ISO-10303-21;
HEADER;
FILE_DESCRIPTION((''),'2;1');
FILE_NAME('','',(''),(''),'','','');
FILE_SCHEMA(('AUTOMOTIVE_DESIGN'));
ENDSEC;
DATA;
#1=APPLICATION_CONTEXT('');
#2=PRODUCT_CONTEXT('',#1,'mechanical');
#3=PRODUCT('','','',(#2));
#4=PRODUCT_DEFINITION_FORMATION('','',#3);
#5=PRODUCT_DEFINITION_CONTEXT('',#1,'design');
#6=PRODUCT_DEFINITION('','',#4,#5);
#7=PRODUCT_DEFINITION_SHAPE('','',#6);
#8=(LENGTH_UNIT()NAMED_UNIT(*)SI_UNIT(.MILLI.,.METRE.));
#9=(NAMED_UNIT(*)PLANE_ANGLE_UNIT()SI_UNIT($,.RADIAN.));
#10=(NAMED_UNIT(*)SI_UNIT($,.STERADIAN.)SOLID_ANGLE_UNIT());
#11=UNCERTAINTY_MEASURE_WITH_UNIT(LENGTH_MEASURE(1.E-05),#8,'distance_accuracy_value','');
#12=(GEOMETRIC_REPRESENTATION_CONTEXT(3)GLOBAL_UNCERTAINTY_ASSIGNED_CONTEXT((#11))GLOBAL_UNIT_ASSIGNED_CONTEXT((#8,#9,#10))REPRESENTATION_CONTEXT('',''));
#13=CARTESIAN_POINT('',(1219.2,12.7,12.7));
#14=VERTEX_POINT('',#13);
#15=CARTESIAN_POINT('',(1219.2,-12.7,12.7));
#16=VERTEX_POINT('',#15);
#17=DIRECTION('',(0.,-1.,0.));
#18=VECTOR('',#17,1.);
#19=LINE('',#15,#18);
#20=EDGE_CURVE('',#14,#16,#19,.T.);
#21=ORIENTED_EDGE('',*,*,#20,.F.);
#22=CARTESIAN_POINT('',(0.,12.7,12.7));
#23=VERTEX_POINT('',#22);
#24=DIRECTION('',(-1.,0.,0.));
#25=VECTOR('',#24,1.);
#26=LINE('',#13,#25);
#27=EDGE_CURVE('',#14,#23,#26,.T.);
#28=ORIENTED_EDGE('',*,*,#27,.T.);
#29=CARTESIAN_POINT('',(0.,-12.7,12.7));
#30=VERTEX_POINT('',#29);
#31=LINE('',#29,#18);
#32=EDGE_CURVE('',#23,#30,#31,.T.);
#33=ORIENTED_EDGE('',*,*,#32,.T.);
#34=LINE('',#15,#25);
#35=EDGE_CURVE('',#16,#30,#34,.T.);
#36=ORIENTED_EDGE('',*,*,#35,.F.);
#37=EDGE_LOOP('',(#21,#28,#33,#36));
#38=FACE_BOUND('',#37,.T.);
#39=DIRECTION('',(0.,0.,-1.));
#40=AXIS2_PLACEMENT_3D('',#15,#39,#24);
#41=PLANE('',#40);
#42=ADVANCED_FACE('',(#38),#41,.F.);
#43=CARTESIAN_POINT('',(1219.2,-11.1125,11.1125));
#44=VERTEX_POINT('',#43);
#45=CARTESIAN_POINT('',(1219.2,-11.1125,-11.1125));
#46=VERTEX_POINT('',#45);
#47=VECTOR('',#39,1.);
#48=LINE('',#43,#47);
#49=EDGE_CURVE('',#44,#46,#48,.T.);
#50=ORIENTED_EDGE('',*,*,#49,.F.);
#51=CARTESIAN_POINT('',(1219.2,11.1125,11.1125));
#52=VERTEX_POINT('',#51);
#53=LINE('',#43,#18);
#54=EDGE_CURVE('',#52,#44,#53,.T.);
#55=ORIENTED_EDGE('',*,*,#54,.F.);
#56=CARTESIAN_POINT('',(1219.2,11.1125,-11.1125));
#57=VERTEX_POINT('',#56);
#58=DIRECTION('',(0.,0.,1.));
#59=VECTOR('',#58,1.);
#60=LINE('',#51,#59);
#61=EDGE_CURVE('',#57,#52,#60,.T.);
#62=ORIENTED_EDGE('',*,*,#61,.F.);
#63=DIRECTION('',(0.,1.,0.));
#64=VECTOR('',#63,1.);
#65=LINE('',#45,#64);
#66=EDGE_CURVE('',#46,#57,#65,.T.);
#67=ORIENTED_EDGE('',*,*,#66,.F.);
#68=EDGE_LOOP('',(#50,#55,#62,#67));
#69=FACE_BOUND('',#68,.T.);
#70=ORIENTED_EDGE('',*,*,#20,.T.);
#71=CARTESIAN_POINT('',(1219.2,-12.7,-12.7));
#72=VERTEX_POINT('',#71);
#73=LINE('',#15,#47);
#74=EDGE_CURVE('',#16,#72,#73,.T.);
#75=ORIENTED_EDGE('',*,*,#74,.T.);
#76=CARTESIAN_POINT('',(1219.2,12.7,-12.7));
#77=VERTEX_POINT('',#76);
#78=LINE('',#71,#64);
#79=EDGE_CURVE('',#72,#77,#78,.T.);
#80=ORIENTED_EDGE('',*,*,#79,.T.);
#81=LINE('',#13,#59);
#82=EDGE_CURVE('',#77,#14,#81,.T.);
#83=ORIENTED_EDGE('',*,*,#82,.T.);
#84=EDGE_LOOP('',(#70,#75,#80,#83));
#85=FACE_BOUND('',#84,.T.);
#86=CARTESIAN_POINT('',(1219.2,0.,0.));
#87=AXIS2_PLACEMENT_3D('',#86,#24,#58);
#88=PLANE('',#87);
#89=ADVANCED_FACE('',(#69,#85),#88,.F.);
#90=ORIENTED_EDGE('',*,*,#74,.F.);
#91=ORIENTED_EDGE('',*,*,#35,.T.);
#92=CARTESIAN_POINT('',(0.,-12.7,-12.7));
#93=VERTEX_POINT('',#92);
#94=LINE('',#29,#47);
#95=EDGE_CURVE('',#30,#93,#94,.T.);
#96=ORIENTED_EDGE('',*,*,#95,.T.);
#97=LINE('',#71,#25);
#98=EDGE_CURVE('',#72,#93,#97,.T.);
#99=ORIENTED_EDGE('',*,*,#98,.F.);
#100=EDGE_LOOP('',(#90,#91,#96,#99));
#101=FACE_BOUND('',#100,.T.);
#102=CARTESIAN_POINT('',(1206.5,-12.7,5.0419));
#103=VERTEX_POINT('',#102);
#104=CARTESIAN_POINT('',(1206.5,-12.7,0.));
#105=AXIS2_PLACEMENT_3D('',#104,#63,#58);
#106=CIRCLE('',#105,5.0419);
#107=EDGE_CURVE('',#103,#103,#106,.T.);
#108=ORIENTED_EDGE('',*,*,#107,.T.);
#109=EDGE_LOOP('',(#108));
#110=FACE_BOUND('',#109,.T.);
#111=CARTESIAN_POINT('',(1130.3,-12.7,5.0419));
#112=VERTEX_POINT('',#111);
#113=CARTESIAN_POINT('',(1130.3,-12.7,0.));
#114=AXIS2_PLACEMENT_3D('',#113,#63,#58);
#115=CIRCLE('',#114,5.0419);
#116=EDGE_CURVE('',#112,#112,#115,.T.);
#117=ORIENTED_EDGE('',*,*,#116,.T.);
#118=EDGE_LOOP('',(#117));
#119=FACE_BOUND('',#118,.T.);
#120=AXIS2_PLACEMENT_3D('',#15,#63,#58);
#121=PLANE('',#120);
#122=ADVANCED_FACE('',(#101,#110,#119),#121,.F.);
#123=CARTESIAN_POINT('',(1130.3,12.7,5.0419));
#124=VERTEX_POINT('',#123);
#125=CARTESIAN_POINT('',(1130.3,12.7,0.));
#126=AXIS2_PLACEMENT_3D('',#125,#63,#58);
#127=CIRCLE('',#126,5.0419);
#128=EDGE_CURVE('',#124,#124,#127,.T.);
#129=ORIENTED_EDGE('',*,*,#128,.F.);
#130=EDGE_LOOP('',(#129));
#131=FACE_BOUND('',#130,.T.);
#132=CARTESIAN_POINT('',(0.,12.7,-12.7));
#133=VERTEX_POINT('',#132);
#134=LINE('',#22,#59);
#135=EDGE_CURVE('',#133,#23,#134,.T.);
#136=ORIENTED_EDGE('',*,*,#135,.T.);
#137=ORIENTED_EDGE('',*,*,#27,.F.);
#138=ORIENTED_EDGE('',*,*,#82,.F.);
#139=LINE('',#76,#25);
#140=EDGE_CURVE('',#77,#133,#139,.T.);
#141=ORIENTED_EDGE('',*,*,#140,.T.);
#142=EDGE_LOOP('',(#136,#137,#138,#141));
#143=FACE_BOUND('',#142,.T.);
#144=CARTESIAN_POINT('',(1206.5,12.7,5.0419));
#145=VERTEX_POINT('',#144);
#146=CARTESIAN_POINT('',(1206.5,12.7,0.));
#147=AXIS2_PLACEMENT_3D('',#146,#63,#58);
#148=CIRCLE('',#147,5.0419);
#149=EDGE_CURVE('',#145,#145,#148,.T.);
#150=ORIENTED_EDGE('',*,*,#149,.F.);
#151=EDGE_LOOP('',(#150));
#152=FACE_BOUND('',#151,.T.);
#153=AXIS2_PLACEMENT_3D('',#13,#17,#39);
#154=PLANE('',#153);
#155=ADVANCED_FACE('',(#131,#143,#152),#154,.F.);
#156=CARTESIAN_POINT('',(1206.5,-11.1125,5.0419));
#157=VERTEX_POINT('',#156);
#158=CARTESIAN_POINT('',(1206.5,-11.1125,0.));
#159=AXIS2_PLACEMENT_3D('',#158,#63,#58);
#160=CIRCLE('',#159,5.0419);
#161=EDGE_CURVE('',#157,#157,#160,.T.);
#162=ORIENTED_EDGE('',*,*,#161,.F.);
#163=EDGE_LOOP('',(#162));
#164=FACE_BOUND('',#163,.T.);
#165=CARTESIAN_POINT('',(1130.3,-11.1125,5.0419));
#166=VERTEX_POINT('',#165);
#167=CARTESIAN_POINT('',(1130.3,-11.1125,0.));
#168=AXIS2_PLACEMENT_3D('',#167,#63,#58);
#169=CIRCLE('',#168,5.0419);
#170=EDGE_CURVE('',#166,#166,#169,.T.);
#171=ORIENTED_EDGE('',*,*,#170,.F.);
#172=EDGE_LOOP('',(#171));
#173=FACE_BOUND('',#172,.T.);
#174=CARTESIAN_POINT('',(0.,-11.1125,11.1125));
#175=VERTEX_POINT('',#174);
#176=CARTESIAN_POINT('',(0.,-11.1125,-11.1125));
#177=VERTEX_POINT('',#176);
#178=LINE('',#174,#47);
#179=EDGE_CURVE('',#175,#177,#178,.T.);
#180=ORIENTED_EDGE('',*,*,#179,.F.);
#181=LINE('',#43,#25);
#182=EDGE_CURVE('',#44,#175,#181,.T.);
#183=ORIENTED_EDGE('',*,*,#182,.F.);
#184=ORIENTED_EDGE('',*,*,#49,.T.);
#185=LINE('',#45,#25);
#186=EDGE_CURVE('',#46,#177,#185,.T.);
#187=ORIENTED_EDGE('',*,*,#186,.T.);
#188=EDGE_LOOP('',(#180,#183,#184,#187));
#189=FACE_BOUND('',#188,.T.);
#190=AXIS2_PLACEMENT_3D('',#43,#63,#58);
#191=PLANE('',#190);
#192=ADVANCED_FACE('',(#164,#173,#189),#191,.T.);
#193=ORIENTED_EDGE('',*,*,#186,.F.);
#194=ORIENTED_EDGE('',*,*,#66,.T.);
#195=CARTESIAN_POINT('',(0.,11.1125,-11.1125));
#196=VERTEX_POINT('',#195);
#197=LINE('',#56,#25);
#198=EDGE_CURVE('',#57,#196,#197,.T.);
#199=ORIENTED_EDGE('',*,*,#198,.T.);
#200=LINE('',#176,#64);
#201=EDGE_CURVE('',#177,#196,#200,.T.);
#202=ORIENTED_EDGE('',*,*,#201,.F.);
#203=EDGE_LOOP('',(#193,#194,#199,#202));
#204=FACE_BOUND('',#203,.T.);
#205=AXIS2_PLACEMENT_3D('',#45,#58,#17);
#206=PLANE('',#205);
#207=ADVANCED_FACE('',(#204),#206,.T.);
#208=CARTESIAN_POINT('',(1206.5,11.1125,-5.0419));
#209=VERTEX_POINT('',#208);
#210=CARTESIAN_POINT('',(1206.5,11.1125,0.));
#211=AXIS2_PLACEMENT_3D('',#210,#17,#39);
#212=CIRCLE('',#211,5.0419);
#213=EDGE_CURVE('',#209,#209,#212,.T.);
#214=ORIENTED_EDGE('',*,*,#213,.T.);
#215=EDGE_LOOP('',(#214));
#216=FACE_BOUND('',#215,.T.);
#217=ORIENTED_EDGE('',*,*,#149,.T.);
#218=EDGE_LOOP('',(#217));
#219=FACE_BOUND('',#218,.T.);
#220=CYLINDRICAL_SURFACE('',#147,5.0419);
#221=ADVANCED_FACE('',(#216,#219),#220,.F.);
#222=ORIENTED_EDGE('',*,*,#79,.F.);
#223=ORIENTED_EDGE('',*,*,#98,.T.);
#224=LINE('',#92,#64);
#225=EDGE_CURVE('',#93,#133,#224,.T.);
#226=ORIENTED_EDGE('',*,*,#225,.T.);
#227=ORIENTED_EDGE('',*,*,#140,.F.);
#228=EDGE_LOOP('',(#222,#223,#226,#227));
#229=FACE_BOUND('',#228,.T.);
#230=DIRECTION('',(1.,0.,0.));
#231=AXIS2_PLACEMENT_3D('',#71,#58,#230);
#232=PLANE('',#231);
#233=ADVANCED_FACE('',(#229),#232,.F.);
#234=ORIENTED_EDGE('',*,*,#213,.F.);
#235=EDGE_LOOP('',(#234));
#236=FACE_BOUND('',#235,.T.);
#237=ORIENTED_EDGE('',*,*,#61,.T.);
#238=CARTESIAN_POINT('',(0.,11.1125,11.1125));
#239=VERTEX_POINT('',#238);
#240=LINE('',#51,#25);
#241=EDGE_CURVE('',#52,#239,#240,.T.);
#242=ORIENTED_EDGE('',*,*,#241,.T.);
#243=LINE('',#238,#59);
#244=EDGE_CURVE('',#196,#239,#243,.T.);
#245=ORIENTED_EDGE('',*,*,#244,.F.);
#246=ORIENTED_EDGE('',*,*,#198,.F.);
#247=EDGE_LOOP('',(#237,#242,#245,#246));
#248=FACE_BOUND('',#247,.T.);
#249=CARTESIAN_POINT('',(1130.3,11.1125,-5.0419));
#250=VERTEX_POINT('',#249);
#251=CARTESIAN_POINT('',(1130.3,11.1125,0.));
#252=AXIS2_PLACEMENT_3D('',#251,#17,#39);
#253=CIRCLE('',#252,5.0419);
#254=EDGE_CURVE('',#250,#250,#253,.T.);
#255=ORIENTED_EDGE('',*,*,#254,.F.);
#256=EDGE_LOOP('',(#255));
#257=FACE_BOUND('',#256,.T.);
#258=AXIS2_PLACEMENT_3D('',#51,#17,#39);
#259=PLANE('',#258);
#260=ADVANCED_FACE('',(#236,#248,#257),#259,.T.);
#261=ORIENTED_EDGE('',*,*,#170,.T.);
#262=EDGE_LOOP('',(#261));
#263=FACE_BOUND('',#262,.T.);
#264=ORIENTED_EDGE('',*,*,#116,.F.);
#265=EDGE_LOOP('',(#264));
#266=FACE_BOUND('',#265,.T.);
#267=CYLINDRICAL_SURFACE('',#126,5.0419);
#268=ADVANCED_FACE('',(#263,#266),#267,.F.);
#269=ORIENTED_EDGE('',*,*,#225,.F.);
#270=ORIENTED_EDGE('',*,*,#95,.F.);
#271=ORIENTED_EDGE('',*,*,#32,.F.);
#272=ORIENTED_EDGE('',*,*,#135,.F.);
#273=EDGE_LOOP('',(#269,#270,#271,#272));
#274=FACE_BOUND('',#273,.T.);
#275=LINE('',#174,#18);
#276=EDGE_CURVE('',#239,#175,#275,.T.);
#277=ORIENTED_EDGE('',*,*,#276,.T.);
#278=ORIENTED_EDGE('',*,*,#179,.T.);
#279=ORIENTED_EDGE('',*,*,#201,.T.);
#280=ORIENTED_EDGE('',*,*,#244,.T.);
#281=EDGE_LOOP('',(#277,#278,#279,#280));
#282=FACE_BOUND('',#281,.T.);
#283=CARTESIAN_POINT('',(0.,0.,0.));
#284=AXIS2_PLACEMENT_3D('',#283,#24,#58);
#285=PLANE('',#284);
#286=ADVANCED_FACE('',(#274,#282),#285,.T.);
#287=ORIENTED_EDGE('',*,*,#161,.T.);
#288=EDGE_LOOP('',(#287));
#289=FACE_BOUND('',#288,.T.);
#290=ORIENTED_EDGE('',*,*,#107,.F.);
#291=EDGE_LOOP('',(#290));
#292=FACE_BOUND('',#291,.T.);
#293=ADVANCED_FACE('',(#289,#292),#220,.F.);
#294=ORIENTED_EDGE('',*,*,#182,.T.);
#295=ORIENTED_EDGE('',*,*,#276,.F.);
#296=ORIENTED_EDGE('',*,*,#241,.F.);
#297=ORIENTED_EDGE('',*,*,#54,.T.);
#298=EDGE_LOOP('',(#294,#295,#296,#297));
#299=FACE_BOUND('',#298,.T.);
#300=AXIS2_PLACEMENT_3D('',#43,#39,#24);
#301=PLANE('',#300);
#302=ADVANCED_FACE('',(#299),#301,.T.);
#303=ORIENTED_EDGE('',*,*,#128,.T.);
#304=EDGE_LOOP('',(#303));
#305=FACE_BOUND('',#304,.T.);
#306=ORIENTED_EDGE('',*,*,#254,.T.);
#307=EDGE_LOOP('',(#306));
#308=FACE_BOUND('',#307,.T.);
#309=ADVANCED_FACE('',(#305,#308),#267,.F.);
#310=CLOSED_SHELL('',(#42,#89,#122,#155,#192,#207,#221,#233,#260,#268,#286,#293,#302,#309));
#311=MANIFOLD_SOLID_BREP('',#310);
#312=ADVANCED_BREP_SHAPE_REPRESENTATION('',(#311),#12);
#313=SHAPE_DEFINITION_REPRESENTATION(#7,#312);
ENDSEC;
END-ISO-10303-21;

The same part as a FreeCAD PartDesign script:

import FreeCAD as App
import Part
import Sketcher

V = App.Vector
Q = App.Units.Quantity


def add_polygon(sketch, points):
    """Adds a closed chain of lines whose ends are joined by coincident constraints."""
    first, n = sketch.GeometryCount, len(points)
    for a, b in zip(points, points[1:] + points[:1]):
        sketch.addGeometry(Part.LineSegment(App.Vector(*a, 0), App.Vector(*b, 0)), False)
    for i in range(n):
        sketch.addConstraint(Sketcher.Constraint("Coincident", first + i, 2, first + (i + 1) % n, 1))

doc = App.newDocument("Part")
params = doc.addObject("Spreadsheet::Sheet", "Params")
for row, (alias, value) in enumerate([
    ("sketch1_width", "1 in"),
    ("sketch1_width2", "0.875 in"),
    ("pad1_length", "48 in"),
    ("sketch2_diameter", "0.397 in"),
    ("hole_diameter", "0.397 in"),
], start=1):
    params.set(f"A{row}", alias)
    params.set(f"B{row}", "=" + value)
    params.setAlias(f"B{row}", alias)

body = doc.addObject("PartDesign::Body", "Body")

sketch1 = body.newObject("Sketcher::SketchObject", "Sketch")
sketch1.AttachmentSupport = (doc.getObject("YZ_Plane"), [""])
sketch1.MapMode = "FlatFace"
add_polygon(sketch1, [(12.7, 12.7), (-12.7, 12.7), (-12.7, -12.7), (12.7, -12.7)])
add_polygon(sketch1, [(-11.1125, -11.1125), (-11.1125, 11.1125), (11.1125, 11.1125), (11.1125, -11.1125)])
sketch1.addConstraint(Sketcher.Constraint("Horizontal", 0))
sketch1.addConstraint(Sketcher.Constraint("Vertical", 1))
sketch1.addConstraint(Sketcher.Constraint("Horizontal", 2))
sketch1.addConstraint(Sketcher.Constraint("Vertical", 3))
sketch1.addConstraint(Sketcher.Constraint("Vertical", 4))
sketch1.addConstraint(Sketcher.Constraint("Horizontal", 5))
sketch1.addConstraint(Sketcher.Constraint("Vertical", 6))
sketch1.addConstraint(Sketcher.Constraint("Horizontal", 7))
sketch1.addConstraint(Sketcher.Constraint("Symmetric", 0, 2, 2, 2, -1, 1))
sketch1.addConstraint(Sketcher.Constraint("Symmetric", 4, 2, 6, 2, -1, 1))
sketch1.addConstraint(Sketcher.Constraint("Equal", 2, 1))
sketch1.addConstraint(Sketcher.Constraint("Equal", 7, 4))
sketch1.addConstraint(Sketcher.Constraint("DistanceX", 0, 2, 0, 1, Q("1 in")))
sketch1.addConstraint(Sketcher.Constraint("DistanceX", 5, 1, 5, 2, Q("0.875 in")))
sketch1.setExpression("Constraints[20]", "Params.sketch1_width")
sketch1.setExpression("Constraints[21]", "Params.sketch1_width2")
pad1 = body.newObject("PartDesign::Pad", "Pad")
pad1.Profile = sketch1
pad1.setExpression("Length", "Params.pad1_length")

sketch2 = body.newObject("Sketcher::SketchObject", "Sketch001")
sketch2.AttachmentSupport = (doc.getObject("XZ_Plane"), [""])
sketch2.MapMode = "FlatFace"
sketch2.AttachmentOffset = App.Placement(V(0, 0, -0.5 * 25.4), App.Rotation())
sketch2.addGeometry(Part.Circle(V(1206.5, 0, 0), V(0, 0, 1), 5.0419), False)
sketch2.addGeometry(Part.Circle(V(1130.3, 0, 0), V(0, 0, 1), 5.0419), False)
sketch2.addConstraint(Sketcher.Constraint("Equal", 0, 1))
sketch2.addConstraint(Sketcher.Constraint("PointOnObject", 0, 3, -1))
sketch2.addConstraint(Sketcher.Constraint("PointOnObject", 1, 3, -1))
sketch2.addConstraint(Sketcher.Constraint("Diameter", 0, Q("0.397 in")))
sketch2.addConstraint(Sketcher.Constraint("DistanceX", 1, 3, 0, 3, Q("3 in")))
sketch2.addConstraint(Sketcher.Constraint("DistanceX", -1, 1, 0, 3, Q("47.5 in")))
sketch2.setExpression("Constraints[3]", "Params.sketch2_diameter")
doc.recompute()
hole = body.newObject("PartDesign::Hole", "Hole")
hole.Profile = sketch2
hole.ThreadType = "None"
hole.setExpression("Diameter", "Params.hole_diameter")
hole.DepthType = "ThroughAll"
hole.Reversed = True

doc.recompute()
